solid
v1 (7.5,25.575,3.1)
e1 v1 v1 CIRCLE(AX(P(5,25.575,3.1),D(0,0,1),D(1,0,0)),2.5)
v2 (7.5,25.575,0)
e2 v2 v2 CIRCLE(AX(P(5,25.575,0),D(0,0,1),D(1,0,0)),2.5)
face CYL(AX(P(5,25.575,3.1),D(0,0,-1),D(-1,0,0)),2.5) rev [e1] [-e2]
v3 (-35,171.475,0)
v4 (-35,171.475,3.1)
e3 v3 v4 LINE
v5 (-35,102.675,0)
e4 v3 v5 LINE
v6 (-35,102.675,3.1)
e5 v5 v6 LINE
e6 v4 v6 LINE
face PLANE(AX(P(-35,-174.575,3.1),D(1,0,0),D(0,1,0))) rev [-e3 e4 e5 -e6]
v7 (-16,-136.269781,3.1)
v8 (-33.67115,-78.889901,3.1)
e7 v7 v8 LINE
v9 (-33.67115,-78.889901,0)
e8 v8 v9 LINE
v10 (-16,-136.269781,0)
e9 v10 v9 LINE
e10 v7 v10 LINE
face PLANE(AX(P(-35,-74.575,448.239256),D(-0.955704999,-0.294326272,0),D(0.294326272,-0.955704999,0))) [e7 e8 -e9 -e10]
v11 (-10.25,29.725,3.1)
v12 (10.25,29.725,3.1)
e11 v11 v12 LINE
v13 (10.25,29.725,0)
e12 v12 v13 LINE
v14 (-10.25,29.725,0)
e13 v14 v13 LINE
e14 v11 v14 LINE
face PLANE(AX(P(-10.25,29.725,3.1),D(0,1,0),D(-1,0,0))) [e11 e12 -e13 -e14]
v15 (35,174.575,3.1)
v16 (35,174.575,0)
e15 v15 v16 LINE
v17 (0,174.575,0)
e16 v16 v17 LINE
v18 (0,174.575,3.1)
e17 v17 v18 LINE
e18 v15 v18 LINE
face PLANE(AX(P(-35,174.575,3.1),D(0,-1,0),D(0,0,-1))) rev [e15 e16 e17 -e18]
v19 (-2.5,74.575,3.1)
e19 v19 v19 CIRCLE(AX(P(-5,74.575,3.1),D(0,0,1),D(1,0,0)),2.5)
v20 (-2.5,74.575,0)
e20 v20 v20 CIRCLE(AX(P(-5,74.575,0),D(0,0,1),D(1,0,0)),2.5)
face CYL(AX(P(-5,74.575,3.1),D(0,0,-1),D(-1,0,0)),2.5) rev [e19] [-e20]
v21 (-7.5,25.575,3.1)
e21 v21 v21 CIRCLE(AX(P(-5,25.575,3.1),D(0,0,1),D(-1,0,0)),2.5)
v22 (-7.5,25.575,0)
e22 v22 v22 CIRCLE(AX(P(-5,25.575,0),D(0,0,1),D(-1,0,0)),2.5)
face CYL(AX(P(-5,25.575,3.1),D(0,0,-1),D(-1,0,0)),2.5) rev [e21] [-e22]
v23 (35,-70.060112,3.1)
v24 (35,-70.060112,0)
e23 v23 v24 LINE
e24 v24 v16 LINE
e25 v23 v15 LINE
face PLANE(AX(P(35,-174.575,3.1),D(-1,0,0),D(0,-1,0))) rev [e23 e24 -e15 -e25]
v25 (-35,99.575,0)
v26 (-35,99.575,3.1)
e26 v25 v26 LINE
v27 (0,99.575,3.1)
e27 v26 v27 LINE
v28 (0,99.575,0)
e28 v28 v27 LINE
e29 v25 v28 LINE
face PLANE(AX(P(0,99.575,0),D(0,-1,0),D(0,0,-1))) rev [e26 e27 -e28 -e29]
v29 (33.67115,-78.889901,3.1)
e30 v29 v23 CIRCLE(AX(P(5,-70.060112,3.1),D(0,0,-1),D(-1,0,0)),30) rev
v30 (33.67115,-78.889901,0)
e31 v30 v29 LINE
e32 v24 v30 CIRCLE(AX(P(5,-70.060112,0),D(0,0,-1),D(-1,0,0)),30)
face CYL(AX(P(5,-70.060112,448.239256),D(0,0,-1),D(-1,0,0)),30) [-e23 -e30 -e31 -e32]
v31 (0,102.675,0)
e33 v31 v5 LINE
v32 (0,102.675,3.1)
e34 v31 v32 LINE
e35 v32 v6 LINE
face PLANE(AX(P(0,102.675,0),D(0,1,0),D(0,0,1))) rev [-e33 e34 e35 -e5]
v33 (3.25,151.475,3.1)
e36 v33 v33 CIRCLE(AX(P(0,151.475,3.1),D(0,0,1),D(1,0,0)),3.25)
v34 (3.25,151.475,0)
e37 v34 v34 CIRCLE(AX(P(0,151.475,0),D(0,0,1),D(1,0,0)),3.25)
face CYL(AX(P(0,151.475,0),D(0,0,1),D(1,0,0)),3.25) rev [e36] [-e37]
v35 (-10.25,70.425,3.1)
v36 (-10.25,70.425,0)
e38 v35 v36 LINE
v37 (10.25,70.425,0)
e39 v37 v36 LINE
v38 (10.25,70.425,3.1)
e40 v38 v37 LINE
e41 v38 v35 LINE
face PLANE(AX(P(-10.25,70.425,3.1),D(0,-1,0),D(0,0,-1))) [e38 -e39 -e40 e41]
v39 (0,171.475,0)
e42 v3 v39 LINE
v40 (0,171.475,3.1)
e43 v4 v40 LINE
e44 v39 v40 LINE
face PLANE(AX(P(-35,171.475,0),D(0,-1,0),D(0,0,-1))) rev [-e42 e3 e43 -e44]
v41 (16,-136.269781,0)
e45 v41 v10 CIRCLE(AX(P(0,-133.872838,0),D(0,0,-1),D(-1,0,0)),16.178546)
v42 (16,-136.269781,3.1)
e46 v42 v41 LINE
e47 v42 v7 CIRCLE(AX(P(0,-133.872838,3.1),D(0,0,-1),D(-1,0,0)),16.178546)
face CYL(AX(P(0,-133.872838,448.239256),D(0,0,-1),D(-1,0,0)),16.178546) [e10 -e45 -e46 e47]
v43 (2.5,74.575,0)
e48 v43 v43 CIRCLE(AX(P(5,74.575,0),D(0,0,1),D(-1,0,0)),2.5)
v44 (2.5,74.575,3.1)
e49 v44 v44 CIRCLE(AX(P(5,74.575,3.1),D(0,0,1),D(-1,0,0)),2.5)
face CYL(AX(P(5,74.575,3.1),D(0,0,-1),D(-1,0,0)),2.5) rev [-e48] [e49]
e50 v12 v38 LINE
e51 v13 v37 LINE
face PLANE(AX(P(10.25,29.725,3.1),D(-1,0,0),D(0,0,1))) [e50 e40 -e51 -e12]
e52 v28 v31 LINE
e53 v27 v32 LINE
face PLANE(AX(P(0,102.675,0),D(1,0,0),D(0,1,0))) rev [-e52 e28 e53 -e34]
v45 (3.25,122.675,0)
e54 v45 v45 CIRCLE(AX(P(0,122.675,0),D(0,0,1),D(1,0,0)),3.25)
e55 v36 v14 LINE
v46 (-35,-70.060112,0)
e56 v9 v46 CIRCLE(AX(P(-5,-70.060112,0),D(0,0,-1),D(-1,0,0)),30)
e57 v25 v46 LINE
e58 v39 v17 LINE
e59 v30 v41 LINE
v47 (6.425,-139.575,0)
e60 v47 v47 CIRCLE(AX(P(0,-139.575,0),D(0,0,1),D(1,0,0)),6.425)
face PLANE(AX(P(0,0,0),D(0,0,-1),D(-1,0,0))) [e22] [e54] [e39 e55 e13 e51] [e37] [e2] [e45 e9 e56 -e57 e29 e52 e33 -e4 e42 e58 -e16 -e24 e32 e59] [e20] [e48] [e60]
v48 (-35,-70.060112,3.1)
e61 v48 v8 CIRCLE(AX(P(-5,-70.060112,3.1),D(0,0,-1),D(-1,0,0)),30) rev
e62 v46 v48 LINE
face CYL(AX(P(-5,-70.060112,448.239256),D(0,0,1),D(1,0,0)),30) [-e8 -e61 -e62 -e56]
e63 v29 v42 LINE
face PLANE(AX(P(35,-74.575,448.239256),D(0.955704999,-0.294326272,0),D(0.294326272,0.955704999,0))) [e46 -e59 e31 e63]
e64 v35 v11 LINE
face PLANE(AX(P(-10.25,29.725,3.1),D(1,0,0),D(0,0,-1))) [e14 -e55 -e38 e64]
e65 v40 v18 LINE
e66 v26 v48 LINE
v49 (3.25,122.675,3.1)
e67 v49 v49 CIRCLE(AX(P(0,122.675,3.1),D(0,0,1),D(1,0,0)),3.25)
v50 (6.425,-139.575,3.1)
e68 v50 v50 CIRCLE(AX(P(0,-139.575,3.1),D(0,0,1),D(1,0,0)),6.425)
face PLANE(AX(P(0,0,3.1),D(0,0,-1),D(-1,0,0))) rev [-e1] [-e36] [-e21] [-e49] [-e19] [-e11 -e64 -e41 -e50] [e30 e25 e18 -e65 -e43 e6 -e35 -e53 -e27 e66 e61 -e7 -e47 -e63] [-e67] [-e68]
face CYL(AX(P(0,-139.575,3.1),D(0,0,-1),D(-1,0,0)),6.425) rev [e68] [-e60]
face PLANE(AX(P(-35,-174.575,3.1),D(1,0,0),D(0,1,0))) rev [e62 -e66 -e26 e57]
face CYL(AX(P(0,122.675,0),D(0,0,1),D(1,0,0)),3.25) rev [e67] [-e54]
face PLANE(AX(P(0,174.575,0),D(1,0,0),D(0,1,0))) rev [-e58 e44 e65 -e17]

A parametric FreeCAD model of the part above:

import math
import FreeCAD as App
import Part
import Sketcher


def edges_at(feature, points):
    """Names of the edges that pass closest to the given points."""
    edges = feature.Shape.Edges
    near = lambda p: min(range(len(edges)), key=lambda i: edges[i].distToShape(Part.Vertex(*p))[0])
    return sorted({f"Edge{near(p) + 1}" for p in points})


def add_polygon(sketch, points):
    """Adds a closed chain of lines whose ends are joined by coincident constraints."""
    first, n = sketch.GeometryCount, len(points)
    for a, b in zip(points, points[1:] + points[:1]):
        sketch.addGeometry(Part.LineSegment(App.Vector(*a, 0), App.Vector(*b, 0)), False)
    for i in range(n):
        sketch.addConstraint(Sketcher.Constraint("Coincident", first + i, 2, first + (i + 1) % n, 1))

doc = App.newDocument("Part")
params = doc.addObject("Spreadsheet::Sheet", "Params")
for row, (alias, value) in enumerate([
    ("sketch1_diameter", "5 mm"),
    ("sketch1_diameter2", "12.85 mm"),
    ("sketch1_width", "70 mm"),
    ("sketch1_width2", "20.5 mm"),
    ("sketch1_height", "40.7 mm"),
    ("pad1_length", "3.1 mm"),
    ("sketch2_width", "70 mm"),
    ("sketch2_height", "100 mm"),
    ("fillet_radius", "30 mm"),
    ("sketch3_diameter", "6.5 mm"),
    ("sketch3_width", "35 mm"),
    ("sketch3_height", "3.1 mm"),
], start=1):
    params.set(f"A{row}", alias)
    params.set(f"B{row}", "=" + value)
    params.setAlias(f"B{row}", alias)

body = doc.addObject("PartDesign::Body", "Body")

# Sketch on XY plane
sketch1 = body.newObject("Sketcher::SketchObject", "Sketch")
sketch1.AttachmentSupport = (doc.getObject("XY_Plane"), [""])
sketch1.MapMode = "FlatFace"
add_polygon(sketch1, [(-35, 174.6), (-35, -174.6), (35, -174.6), (35, 174.6)])  # lines 0-3
sketch1.addGeometry(Part.Circle(App.Vector(0, -139.6, 0), App.Vector(0, 0, 1), 6.4), False)  # 4
sketch1.addGeometry(Part.Circle(App.Vector(-5, 25.6, 0), App.Vector(0, 0, 1), 2.5), False)  # 5
sketch1.addGeometry(Part.Circle(App.Vector(-5, 74.6, 0), App.Vector(0, 0, 1), 2.5), False)  # 6
sketch1.addGeometry(Part.Circle(App.Vector(5, 25.6, 0), App.Vector(0, 0, 1), 2.5), False)  # 7
add_polygon(sketch1, [(10.2, 29.7), (-10.2, 29.7), (-10.2, 70.4), (10.2, 70.4)])  # lines 8-11
sketch1.addGeometry(Part.Circle(App.Vector(5, 74.6, 0), App.Vector(0, 0, 1), 2.5), False)  # 12
sketch1.addConstraint([
    Sketcher.Constraint("Vertical", 0),
    Sketcher.Constraint("Horizontal", 1),
    Sketcher.Constraint("Vertical", 2),
    Sketcher.Constraint("Horizontal", 3),
    Sketcher.Constraint("Horizontal", 8),
    Sketcher.Constraint("Vertical", 9),
    Sketcher.Constraint("Horizontal", 10),
    Sketcher.Constraint("Vertical", 11),
    Sketcher.Constraint("Equal", 5, 6),
    Sketcher.Constraint("Equal", 6, 7),
    Sketcher.Constraint("Equal", 7, 12),
    Sketcher.Constraint("Symmetric", 0, 2, 2, 2, -1, 1),
    Sketcher.Constraint("Symmetric", 5, 3, 7, 3, -2),
    Sketcher.Constraint("Symmetric", 6, 3, 12, 3, -2),
    Sketcher.Constraint("PointOnObject", 4, 3, -2),
    Sketcher.Constraint("Vertical", 5, 3, 6, 3),
    Sketcher.Constraint("Diameter", 5, 5.0),
    Sketcher.Constraint("Diameter", 4, 12.85),
    Sketcher.Constraint("DistanceX", 1, 1, 1, 2, 70.0),
    Sketcher.Constraint("DistanceX", 8, 2, 8, 1, 20.5),
    Sketcher.Constraint("DistanceY", 9, 1, 9, 2, 40.7),
    Sketcher.Constraint("DistanceX", 5, 3, -1, 1, 5.0),
    Sketcher.Constraint("DistanceY", 5, 3, 6, 3, 49.0),
    Sketcher.Constraint("DistanceY", 0, 2, 4, 3, 35.0),
    Sketcher.Constraint("DistanceY", 12, 3, 2, 2, 100.0),
    Sketcher.Constraint("DistanceY", 0, 2, 0, 1, 349.15),
    Sketcher.Constraint("DistanceX", 8, 2, -1, 1, 10.25),
    Sketcher.Constraint("DistanceY", 5, 3, 8, 2, 4.15),
])
sketch1.setExpression("Constraints[24]", "Params.sketch1_diameter")
sketch1.setExpression("Constraints[25]", "Params.sketch1_diameter2")
sketch1.setExpression("Constraints[26]", "Params.sketch1_width")
sketch1.setExpression("Constraints[27]", "Params.sketch1_width2")
sketch1.setExpression("Constraints[28]", "Params.sketch1_height")
pad1 = body.newObject("PartDesign::Pad", "Pad")
pad1.Profile = sketch1
pad1.setExpression("Length", "Params.pad1_length")

# Sketch on XY plane
sketch2 = body.newObject("Sketcher::SketchObject", "Sketch001")
sketch2.AttachmentSupport = (doc.getObject("XY_Plane"), [""])
sketch2.MapMode = "FlatFace"
sketch2.AttachmentOffset = App.Placement(App.Vector(0, 0, 3.1), App.Rotation())
sketch2.addGeometry([
    Part.LineSegment(App.Vector(-16, -136, 0), App.Vector(-35, -75, 0)),  # 0
    Part.LineSegment(App.Vector(-35, -75, 0), App.Vector(-35, -175, 0)),  # 1
    Part.LineSegment(App.Vector(-35, -175, 0), App.Vector(35, -175, 0)),  # 2
    Part.LineSegment(App.Vector(35, -175, 0), App.Vector(35, -75, 0)),  # 3
    Part.LineSegment(App.Vector(35, -75, 0), App.Vector(16, -136, 0)),  # 4
    Part.ArcOfCircle(Part.Circle(App.Vector(0, -134, 0), App.Vector(0, 0, 1), 16), math.radians(-171), math.radians(-9)),  # 5
], False)
sketch2.addConstraint([
    Sketcher.Constraint("Coincident", 0, 2, 1, 1),
    Sketcher.Constraint("Coincident", 1, 2, 2, 1),
    Sketcher.Constraint("Coincident", 2, 2, 3, 1),
    Sketcher.Constraint("Coincident", 3, 2, 4, 1),
    Sketcher.Constraint("Coincident", 4, 2, 5, 2),
    Sketcher.Constraint("Coincident", 5, 1, 0, 1),
    Sketcher.Constraint("Vertical", 1),
    Sketcher.Constraint("Horizontal", 2),
    Sketcher.Constraint("Vertical", 3),
    Sketcher.Constraint("Symmetric", 0, 2, 3, 2, -2),
    Sketcher.Constraint("Symmetric", 4, 2, 5, 1, -2),
    Sketcher.Constraint("DistanceX", 2, 1, 2, 2, 70.0),
    Sketcher.Constraint("DistanceY", 1, 2, 1, 1, 100.0),
    Sketcher.Constraint("DistanceX", -1, 1, 4, 2, 16.0),
    Sketcher.Constraint("DistanceY", 0, 2, -1, 1, 74.575),
    Sketcher.Constraint("Radius", 5, 16.178546),
    Sketcher.Constraint("Distance", 0, 64.55421),
])
sketch2.setExpression("Constraints[11]", "Params.sketch2_width")
sketch2.setExpression("Constraints[12]", "Params.sketch2_height")
pocket1 = body.newObject("PartDesign::Pocket", "Pocket")
pocket1.Profile = sketch2
pocket1.Type = "ThroughAll"
pocket1.Midplane = True
doc.recompute()

fillet = body.newObject("PartDesign::Fillet", "Fillet")
fillet.Base = (pocket1, edges_at(pocket1, [(-35, -74.575, 1.55), (35, -74.575, 1.55)]))
fillet.setExpression("Radius", "Params.fillet_radius")

# Sketch on XY plane
sketch3 = body.newObject("Sketcher::SketchObject", "Sketch002")
sketch3.AttachmentSupport = (doc.getObject("XY_Plane"), [""])
sketch3.MapMode = "FlatFace"
sketch3.AttachmentOffset = App.Placement(App.Vector(0, 0, 3.1), App.Rotation())
sketch3.addGeometry(Part.Circle(App.Vector(0, 122.7, 0), App.Vector(0, 0, 1), 3.2), False)  # 0
sketch3.addGeometry(Part.Circle(App.Vector(0, 151.5, 0), App.Vector(0, 0, 1), 3.2), False)  # 1
add_polygon(sketch3, [(-35, 174.6), (-35, 171.5), (0, 171.5), (0, 174.6)])  # lines 2-5
add_polygon(sketch3, [(-35, 102.7), (-35, 99.6), (0, 99.6), (0, 102.7)])  # lines 6-9
sketch3.addConstraint([
    Sketcher.Constraint("Vertical", 2),
    Sketcher.Constraint("Horizontal", 3),
    Sketcher.Constraint("Vertical", 4),
    Sketcher.Constraint("Horizontal", 5),
    Sketcher.Constraint("Vertical", 6),
    Sketcher.Constraint("Horizontal", 7),
    Sketcher.Constraint("Vertical", 8),
    Sketcher.Constraint("Horizontal", 9),
    Sketcher.Constraint("Equal", 0, 1),
    Sketcher.Constraint("PointOnObject", 0, 3, -2),
    Sketcher.Constraint("PointOnObject", 1, 3, -2),
    Sketcher.Constraint("PointOnObject", 3, 2, -2),
    Sketcher.Constraint("PointOnObject", 7, 2, -2),
    Sketcher.Constraint("Vertical", 5, 2, 6, 2),
    Sketcher.Constraint("Equal", 4, 6),
    Sketcher.Constraint("Diameter", 0, 6.5),
    Sketcher.Constraint("DistanceX", 3, 1, 3, 2, 35.0),
    Sketcher.Constraint("DistanceY", 2, 2, 2, 1, 3.1),
    Sketcher.Constraint("DistanceY", 1, 3, 2, 2, 20.0),
    Sketcher.Constraint("DistanceY", 6, 2, 5, 2, 75.0),
    Sketcher.Constraint("DistanceY", 8, 2, 0, 3, 20.0),
    Sketcher.Constraint("DistanceY", -1, 1, 0, 3, 122.675),
])
sketch3.setExpression("Constraints[23]", "Params.sketch3_diameter")
sketch3.setExpression("Constraints[24]", "Params.sketch3_width")
sketch3.setExpression("Constraints[25]", "Params.sketch3_height")
pocket2 = body.newObject("PartDesign::Pocket", "Pocket001")
pocket2.Profile = sketch3
pocket2.Type = "ThroughAll"

doc.recompute()
